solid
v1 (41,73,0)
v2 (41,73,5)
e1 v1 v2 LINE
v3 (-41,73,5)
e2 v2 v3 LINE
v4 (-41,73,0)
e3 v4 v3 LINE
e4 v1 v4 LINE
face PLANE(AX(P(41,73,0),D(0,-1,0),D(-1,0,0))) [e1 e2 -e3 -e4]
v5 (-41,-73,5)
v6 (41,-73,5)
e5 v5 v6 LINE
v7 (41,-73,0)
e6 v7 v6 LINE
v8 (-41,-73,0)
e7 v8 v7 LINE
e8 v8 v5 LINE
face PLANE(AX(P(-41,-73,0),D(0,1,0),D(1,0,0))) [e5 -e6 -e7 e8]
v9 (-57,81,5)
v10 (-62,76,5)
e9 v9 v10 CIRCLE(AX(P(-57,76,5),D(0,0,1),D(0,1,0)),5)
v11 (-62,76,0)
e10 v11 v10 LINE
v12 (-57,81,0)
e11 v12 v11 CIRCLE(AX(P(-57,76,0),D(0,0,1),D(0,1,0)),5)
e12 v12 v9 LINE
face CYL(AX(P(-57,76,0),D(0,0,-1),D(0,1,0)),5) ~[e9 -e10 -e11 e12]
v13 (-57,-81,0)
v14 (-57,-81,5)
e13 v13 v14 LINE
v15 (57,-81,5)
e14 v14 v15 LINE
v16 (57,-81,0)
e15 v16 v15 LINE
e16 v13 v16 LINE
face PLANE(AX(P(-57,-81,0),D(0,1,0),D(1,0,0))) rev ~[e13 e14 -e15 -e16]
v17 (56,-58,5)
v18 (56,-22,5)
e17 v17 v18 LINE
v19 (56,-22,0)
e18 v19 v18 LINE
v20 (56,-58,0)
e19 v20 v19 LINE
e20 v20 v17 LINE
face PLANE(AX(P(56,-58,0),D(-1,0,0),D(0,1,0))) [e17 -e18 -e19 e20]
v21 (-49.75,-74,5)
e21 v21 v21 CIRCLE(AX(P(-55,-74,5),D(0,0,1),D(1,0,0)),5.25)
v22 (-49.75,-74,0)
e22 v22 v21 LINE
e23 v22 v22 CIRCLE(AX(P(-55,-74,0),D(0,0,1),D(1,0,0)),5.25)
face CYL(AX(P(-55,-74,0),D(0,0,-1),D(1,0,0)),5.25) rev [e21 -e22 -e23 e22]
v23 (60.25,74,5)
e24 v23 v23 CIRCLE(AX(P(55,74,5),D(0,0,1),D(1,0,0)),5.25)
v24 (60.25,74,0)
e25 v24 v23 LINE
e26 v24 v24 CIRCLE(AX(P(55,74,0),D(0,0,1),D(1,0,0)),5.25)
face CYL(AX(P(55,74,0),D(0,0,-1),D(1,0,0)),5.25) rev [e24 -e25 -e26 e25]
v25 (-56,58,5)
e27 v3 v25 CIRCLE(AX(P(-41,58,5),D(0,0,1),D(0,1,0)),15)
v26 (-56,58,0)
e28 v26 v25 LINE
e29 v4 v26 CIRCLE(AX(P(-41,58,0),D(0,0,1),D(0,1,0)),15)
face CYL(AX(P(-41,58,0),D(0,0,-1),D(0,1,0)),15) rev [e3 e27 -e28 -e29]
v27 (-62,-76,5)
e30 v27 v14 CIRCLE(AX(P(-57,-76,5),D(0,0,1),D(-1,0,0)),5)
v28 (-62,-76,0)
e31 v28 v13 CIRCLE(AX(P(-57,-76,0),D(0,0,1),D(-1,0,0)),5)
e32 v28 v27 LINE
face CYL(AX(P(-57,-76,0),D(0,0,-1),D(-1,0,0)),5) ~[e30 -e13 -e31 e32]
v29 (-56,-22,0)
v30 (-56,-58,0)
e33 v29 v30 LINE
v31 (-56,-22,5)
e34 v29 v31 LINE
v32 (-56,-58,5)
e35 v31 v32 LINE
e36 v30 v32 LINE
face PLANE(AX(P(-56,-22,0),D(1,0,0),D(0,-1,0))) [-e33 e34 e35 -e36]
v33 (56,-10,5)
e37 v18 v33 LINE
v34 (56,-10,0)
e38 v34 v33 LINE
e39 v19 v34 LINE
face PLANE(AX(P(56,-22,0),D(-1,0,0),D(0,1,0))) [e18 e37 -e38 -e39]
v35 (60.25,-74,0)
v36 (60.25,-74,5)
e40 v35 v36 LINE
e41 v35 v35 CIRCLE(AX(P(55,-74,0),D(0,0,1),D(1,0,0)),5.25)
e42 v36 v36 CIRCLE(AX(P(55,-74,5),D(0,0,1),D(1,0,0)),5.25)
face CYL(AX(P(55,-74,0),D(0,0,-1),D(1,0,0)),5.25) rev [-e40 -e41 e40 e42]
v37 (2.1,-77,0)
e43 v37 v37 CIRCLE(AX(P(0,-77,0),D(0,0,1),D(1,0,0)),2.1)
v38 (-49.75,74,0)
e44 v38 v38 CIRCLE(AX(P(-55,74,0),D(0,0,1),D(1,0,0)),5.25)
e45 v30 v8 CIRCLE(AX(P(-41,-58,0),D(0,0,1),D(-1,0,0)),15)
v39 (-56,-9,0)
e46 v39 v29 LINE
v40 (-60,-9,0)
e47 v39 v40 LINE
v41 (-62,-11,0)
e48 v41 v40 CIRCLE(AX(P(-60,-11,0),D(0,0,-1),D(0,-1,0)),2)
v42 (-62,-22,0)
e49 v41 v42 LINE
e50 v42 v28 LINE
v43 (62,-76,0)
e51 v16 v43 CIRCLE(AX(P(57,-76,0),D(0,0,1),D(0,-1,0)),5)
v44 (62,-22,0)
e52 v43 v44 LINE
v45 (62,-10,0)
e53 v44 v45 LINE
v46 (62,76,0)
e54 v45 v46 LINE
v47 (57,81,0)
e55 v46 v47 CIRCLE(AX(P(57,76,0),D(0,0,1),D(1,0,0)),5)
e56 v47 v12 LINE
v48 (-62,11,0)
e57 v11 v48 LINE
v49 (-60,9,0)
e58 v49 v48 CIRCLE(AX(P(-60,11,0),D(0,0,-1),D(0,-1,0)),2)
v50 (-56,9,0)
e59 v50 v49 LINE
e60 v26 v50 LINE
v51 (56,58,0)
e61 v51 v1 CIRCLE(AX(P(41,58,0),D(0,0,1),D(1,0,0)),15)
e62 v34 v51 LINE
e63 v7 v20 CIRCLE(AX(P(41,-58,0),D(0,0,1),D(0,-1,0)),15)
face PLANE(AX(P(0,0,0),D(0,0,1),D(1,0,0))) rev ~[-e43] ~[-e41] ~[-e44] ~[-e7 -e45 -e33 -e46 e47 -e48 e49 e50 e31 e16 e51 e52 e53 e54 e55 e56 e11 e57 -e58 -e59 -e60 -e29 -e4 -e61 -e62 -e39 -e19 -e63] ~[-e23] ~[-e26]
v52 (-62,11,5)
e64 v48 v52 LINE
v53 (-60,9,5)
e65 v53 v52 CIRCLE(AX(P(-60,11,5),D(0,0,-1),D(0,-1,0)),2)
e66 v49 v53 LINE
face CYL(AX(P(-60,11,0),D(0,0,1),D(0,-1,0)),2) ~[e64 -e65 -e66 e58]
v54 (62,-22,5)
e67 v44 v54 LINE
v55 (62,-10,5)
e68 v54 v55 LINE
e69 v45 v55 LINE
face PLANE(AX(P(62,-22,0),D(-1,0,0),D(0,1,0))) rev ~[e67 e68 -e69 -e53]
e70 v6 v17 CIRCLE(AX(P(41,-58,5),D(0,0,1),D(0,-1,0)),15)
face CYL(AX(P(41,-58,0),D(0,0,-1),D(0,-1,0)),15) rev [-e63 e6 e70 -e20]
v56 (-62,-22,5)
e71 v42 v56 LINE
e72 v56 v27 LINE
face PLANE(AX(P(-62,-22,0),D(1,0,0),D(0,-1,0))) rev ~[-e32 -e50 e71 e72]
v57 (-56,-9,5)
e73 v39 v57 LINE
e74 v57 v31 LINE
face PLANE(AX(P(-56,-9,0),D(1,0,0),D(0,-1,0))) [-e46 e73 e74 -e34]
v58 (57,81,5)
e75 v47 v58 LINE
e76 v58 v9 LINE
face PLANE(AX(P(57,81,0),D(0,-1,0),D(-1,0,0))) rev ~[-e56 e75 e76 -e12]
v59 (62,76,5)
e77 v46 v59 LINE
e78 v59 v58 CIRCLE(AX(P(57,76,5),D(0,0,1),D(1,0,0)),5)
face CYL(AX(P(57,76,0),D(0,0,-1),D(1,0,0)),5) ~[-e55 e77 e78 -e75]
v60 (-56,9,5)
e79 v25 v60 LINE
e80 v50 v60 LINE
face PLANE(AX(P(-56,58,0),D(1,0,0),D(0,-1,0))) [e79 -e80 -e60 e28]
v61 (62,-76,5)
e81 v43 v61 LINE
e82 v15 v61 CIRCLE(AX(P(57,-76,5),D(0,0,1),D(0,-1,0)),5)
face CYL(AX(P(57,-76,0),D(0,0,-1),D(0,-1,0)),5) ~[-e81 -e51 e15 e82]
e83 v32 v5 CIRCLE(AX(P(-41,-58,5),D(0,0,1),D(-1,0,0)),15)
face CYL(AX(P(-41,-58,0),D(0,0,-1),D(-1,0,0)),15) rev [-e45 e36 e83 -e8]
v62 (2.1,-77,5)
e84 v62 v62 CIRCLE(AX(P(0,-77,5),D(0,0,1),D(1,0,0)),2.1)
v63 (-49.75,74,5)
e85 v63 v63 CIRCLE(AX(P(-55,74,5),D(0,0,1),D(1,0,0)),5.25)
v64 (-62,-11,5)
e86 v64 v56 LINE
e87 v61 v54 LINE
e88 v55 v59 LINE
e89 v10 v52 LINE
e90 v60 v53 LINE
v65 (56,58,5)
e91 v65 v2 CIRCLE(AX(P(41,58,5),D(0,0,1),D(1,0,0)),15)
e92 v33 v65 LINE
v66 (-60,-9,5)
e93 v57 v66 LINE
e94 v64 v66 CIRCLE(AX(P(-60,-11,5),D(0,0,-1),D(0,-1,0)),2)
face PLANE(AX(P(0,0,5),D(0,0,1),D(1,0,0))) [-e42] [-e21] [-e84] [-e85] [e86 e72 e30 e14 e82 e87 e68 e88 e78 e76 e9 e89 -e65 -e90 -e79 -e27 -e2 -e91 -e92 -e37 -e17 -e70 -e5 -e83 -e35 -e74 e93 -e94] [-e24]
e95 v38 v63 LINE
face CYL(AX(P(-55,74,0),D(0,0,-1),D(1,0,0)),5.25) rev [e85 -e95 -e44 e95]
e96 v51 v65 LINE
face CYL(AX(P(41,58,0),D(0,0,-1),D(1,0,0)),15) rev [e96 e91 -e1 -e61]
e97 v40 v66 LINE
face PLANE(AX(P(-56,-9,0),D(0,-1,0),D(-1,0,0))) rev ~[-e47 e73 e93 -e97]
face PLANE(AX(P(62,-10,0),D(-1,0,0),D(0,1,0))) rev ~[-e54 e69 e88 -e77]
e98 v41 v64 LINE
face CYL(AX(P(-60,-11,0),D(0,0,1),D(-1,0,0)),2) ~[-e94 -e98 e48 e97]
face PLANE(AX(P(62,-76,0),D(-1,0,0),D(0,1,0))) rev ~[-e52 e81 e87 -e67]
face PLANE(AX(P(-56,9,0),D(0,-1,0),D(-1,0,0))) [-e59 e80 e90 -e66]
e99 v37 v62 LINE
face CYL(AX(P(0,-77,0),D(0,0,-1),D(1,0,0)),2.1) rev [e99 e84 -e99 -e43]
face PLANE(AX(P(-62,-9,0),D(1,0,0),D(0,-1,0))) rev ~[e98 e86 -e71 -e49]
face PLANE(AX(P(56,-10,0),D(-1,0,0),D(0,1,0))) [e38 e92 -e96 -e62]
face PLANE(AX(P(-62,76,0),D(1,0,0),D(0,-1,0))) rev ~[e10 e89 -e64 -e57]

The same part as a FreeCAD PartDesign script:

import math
import FreeCAD as App
import Part
import Sketcher

V = App.Vector


def edges_at(feature, points):
    """Names of the edges that pass closest to the given points."""
    edges = feature.Shape.Edges
    near = lambda p: min(range(len(edges)), key=lambda i: edges[i].distToShape(Part.Vertex(*p))[0])
    return sorted({f"Edge{near(p) + 1}" for p in points})

doc = App.newDocument("Part")
body = doc.addObject("PartDesign::Body", "Body")

sketch1 = doc.addObject("Sketcher::SketchObject", "Sketch")
body.addObject(sketch1)
sketch1.AttachmentSupport = (doc.XY_Plane, [""])
sketch1.MapMode = "FlatFace"
sketch1.addGeometry(Part.ArcOfCircle(Part.Circle(V(-57, -76, 0), V(0, 0, 1), 5), math.radians(180), math.radians(270)), False)
sketch1.addGeometry(Part.LineSegment(V(-57, -81, 0), V(57, -81, 0)), False)
sketch1.addGeometry(Part.ArcOfCircle(Part.Circle(V(57, -76, 0), V(0, 0, 1), 5), math.radians(-90), math.radians(0)), False)
sketch1.addGeometry(Part.LineSegment(V(62, -76, 0), V(62, 76, 0)), False)
sketch1.addGeometry(Part.ArcOfCircle(Part.Circle(V(57, 76, 0), V(0, 0, 1), 5), math.radians(0), math.radians(90)), False)
sketch1.addGeometry(Part.LineSegment(V(57, 81, 0), V(-57, 81, 0)), False)
sketch1.addGeometry(Part.ArcOfCircle(Part.Circle(V(-57, 76, 0), V(0, 0, 1), 5), math.radians(90), math.radians(180)), False)
sketch1.addGeometry(Part.LineSegment(V(-62, 76, 0), V(-62, 9, 0)), False)
sketch1.addGeometry(Part.LineSegment(V(-62, 9, 0), V(-56, 9, 0)), False)
sketch1.addGeometry(Part.LineSegment(V(-56, 9, 0), V(-56, 58, 0)), False)
sketch1.addGeometry(Part.ArcOfCircle(Part.Circle(V(-41, 58, 0), V(0, 0, 1), 15), math.radians(90), math.radians(180)), False)
sketch1.addGeometry(Part.LineSegment(V(-41, 73, 0), V(41, 73, 0)), False)
sketch1.addGeometry(Part.ArcOfCircle(Part.Circle(V(41, 58, 0), V(0, 0, 1), 15), math.radians(0), math.radians(90)), False)
sketch1.addGeometry(Part.LineSegment(V(56, 58, 0), V(56, -58, 0)), False)
sketch1.addGeometry(Part.ArcOfCircle(Part.Circle(V(41, -58, 0), V(0, 0, 1), 15), math.radians(-90), math.radians(0)), False)
sketch1.addGeometry(Part.LineSegment(V(41, -73, 0), V(-41, -73, 0)), False)
sketch1.addGeometry(Part.ArcOfCircle(Part.Circle(V(-41, -58, 0), V(0, 0, 1), 15), math.radians(180), math.radians(270)), False)
sketch1.addGeometry(Part.LineSegment(V(-56, -58, 0), V(-56, -9, 0)), False)
sketch1.addGeometry(Part.LineSegment(V(-56, -9, 0), V(-62, -9, 0)), False)
sketch1.addGeometry(Part.LineSegment(V(-62, -9, 0), V(-62, -76, 0)), False)
sketch1.addGeometry(Part.Circle(V(-55, -74, 0), V(0, 0, 1), 5.25), False)
sketch1.addGeometry(Part.Circle(V(0, -77, 0), V(0, 0, 1), 2.1), False)
sketch1.addGeometry(Part.Circle(V(55, -74, 0), V(0, 0, 1), 5.25), False)
sketch1.addGeometry(Part.Circle(V(-55, 74, 0), V(0, 0, 1), 5.25), False)
sketch1.addGeometry(Part.Circle(V(55, 74, 0), V(0, 0, 1), 5.25), False)
sketch1.addConstraint(Sketcher.Constraint("Tangent", 0, 2, 1, 1))
sketch1.addConstraint(Sketcher.Constraint("Tangent", 1, 2, 2, 1))
sketch1.addConstraint(Sketcher.Constraint("Tangent", 2, 2, 3, 1))
sketch1.addConstraint(Sketcher.Constraint("Tangent", 3, 2, 4, 1))
sketch1.addConstraint(Sketcher.Constraint("Tangent", 4, 2, 5, 1))
sketch1.addConstraint(Sketcher.Constraint("Tangent", 5, 2, 6, 1))
sketch1.addConstraint(Sketcher.Constraint("Tangent", 6, 2, 7, 1))
sketch1.addConstraint(Sketcher.Constraint("Coincident", 7, 2, 8, 1))
sketch1.addConstraint(Sketcher.Constraint("Coincident", 8, 2, 9, 1))
sketch1.addConstraint(Sketcher.Constraint("Tangent", 9, 2, 10, 2))
sketch1.addConstraint(Sketcher.Constraint("Tangent", 10, 1, 11, 1))
sketch1.addConstraint(Sketcher.Constraint("Tangent", 11, 2, 12, 2))
sketch1.addConstraint(Sketcher.Constraint("Tangent", 12, 1, 13, 1))
sketch1.addConstraint(Sketcher.Constraint("Tangent", 13, 2, 14, 2))
sketch1.addConstraint(Sketcher.Constraint("Tangent", 14, 1, 15, 1))
sketch1.addConstraint(Sketcher.Constraint("Tangent", 15, 2, 16, 2))
sketch1.addConstraint(Sketcher.Constraint("Tangent", 16, 1, 17, 1))
sketch1.addConstraint(Sketcher.Constraint("Coincident", 17, 2, 18, 1))
sketch1.addConstraint(Sketcher.Constraint("Coincident", 18, 2, 19, 1))
sketch1.addConstraint(Sketcher.Constraint("Tangent", 19, 2, 0, 1))
sketch1.addConstraint(Sketcher.Constraint("Horizontal", 1))
sketch1.addConstraint(Sketcher.Constraint("Vertical", 3))
sketch1.addConstraint(Sketcher.Constraint("Horizontal", 5))
sketch1.addConstraint(Sketcher.Constraint("Vertical", 7))
sketch1.addConstraint(Sketcher.Constraint("Horizontal", 8))
sketch1.addConstraint(Sketcher.Constraint("Vertical", 9))
sketch1.addConstraint(Sketcher.Constraint("Horizontal", 11))
sketch1.addConstraint(Sketcher.Constraint("Vertical", 13))
sketch1.addConstraint(Sketcher.Constraint("Horizontal", 15))
sketch1.addConstraint(Sketcher.Constraint("Vertical", 17))
sketch1.addConstraint(Sketcher.Constraint("Horizontal", 18))
sketch1.addConstraint(Sketcher.Constraint("Vertical", 19))
sketch1.addConstraint(Sketcher.Constraint("Equal", 0, 2))
sketch1.addConstraint(Sketcher.Constraint("Equal", 2, 4))
sketch1.addConstraint(Sketcher.Constraint("Equal", 4, 6))
sketch1.addConstraint(Sketcher.Constraint("Equal", 10, 12))
sketch1.addConstraint(Sketcher.Constraint("Equal", 12, 14))
sketch1.addConstraint(Sketcher.Constraint("Equal", 14, 16))
sketch1.addConstraint(Sketcher.Constraint("Equal", 20, 22))
sketch1.addConstraint(Sketcher.Constraint("Equal", 22, 23))
sketch1.addConstraint(Sketcher.Constraint("Equal", 23, 24))
sketch1.addConstraint(Sketcher.Constraint("Symmetric", 0, 3, 4, 3, -1, 1))
sketch1.addConstraint(Sketcher.Constraint("Symmetric", 10, 3, 14, 3, -1, 1))
sketch1.addConstraint(Sketcher.Constraint("Symmetric", 22, 3, 23, 3, -1, 1))
sketch1.addConstraint(Sketcher.Constraint("Symmetric", 20, 3, 24, 3, -1, 1))
sketch1.addConstraint(Sketcher.Constraint("Symmetric", 20, 3, 22, 3, -2))
sketch1.addConstraint(Sketcher.Constraint("Symmetric", 8, 2, 17, 2, -1))
sketch1.addConstraint(Sketcher.Constraint("PointOnObject", 21, 3, -2))
sketch1.addConstraint(Sketcher.Constraint("Vertical", 0, 3, 6, 3))
sketch1.addConstraint(Sketcher.Constraint("Radius", 0, 5.0))
sketch1.addConstraint(Sketcher.Constraint("Radius", 10, 15.0))
sketch1.addConstraint(Sketcher.Constraint("Diameter", 20, 10.5))
sketch1.addConstraint(Sketcher.Constraint("Diameter", 21, 4.2))
sketch1.addConstraint(Sketcher.Constraint("DistanceX", 8, 1, 8, 2, 6.0))
sketch1.addConstraint(Sketcher.Constraint("DistanceY", 0, 2, -1, 1, 81.0))
sketch1.addConstraint(Sketcher.Constraint("DistanceX", -1, 1, 2, 2, 62.0))
sketch1.addConstraint(Sketcher.Constraint("DistanceY", 0, 2, 20, 3, 7.0))
sketch1.addConstraint(Sketcher.Constraint("DistanceY", 0, 2, 21, 3, 4.0))
sketch1.addConstraint(Sketcher.Constraint("DistanceX", 22, 3, 2, 2, 7.0))
sketch1.addConstraint(Sketcher.Constraint("DistanceY", 10, 1, 5, 2, 8.0))
sketch1.addConstraint(Sketcher.Constraint("DistanceY", 7, 2, 7, 1, 67.0))
pad1 = doc.addObject("PartDesign::Pad", "Pad")
body.addObject(pad1)
pad1.Profile = sketch1
pad1.Length = 5
doc.recompute()

fillet = doc.addObject("PartDesign::Fillet", "Fillet")
body.addObject(fillet)
fillet.Base = (pad1, edges_at(pad1, [(-62, 9, 2.5), (-62, -9, 2.5)]))
fillet.Radius = 2

doc.recompute()
